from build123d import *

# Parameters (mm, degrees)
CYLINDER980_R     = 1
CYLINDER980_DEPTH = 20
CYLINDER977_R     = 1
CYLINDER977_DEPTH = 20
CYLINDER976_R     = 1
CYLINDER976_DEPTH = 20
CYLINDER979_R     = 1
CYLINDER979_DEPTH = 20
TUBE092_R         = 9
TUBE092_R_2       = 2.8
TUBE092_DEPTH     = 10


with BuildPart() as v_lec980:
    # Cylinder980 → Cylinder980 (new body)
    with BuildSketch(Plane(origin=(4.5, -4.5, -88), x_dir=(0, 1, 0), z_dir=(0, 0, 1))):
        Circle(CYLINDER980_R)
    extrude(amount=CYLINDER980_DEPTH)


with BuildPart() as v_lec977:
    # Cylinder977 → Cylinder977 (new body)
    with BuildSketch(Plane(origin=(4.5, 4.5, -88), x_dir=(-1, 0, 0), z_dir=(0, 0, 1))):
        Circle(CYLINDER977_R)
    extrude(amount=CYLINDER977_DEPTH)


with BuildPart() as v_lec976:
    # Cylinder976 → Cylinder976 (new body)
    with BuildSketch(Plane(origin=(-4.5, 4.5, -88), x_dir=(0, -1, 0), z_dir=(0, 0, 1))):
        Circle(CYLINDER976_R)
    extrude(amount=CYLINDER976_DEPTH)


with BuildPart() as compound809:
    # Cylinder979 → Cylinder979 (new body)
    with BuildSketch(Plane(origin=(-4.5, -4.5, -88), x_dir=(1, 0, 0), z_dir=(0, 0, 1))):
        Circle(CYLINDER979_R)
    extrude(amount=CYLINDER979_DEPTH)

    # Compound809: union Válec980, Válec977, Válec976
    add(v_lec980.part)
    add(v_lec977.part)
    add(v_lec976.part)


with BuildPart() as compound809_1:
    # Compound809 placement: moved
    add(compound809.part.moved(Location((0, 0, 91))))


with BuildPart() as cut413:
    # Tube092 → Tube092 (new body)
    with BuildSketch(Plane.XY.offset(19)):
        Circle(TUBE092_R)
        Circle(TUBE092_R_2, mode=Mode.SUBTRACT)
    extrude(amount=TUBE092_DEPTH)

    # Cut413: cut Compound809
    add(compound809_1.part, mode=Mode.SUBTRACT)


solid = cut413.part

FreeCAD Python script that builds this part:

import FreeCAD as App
import Part
import Sketcher

V = App.Vector

doc = App.newDocument("Part")
body = doc.addObject("PartDesign::Body", "Body")

# Sketch on XY plane
sketch1 = body.newObject("Sketcher::SketchObject", "Sketch")
sketch1.AttachmentSupport = (doc.getObject("XY_Plane"), [""])
sketch1.MapMode = "FlatFace"
sketch1.AttachmentOffset = App.Placement(V(0, 0, -88), App.Rotation())
sketch1.addGeometry(Part.Circle(V(4.5, -4.5, 0), V(0, 0, 1), 1), False)
sketch1.addConstraint([
    Sketcher.Constraint("Diameter", 0, 2.0),
    Sketcher.Constraint("DistanceX", -1, 1, 0, 3, 4.5),
    Sketcher.Constraint("DistanceY", 0, 3, -1, 1, 4.5),
])
pad1 = body.newObject("PartDesign::Pad", "Pad")
pad1.Profile = sketch1
pad1.Length = 20
body2 = doc.addObject("PartDesign::Body", "Body001")

# Sketch on XY plane
sketch2 = body2.newObject("Sketcher::SketchObject", "Sketch001")
sketch2.AttachmentSupport = (doc.getObject("XY_Plane001"), [""])
sketch2.MapMode = "FlatFace"
sketch2.AttachmentOffset = App.Placement(V(0, 0, -88), App.Rotation())
sketch2.addGeometry(Part.Circle(V(4.5, 4.5, 0), V(0, 0, 1), 1), False)
sketch2.addConstraint([
    Sketcher.Constraint("Diameter", 0, 2.0),
    Sketcher.Constraint("DistanceX", -1, 1, 0, 3, 4.5),
    Sketcher.Constraint("DistanceY", -1, 1, 0, 3, 4.5),
])
pad2 = body2.newObject("PartDesign::Pad", "Pad001")
pad2.Profile = sketch2
pad2.Length = 20
body3 = doc.addObject("PartDesign::Body", "Body002")

# Sketch on XY plane
sketch3 = body3.newObject("Sketcher::SketchObject", "Sketch002")
sketch3.AttachmentSupport = (doc.getObject("XY_Plane002"), [""])
sketch3.MapMode = "FlatFace"
sketch3.AttachmentOffset = App.Placement(V(0, 0, -88), App.Rotation())
sketch3.addGeometry(Part.Circle(V(-4.5, 4.5, 0), V(0, 0, 1), 1), False)
sketch3.addConstraint([
    Sketcher.Constraint("Diameter", 0, 2.0),
    Sketcher.Constraint("DistanceX", 0, 3, -1, 1, 4.5),
    Sketcher.Constraint("DistanceY", -1, 1, 0, 3, 4.5),
])
pad3 = body3.newObject("PartDesign::Pad", "Pad002")
pad3.Profile = sketch3
pad3.Length = 20
body4 = doc.addObject("PartDesign::Body", "Body003")
body4.AllowCompound = True

# Sketch on XY plane
sketch4 = body4.newObject("Sketcher::SketchObject", "Sketch003")
sketch4.AttachmentSupport = (doc.getObject("XY_Plane003"), [""])
sketch4.MapMode = "FlatFace"
sketch4.AttachmentOffset = App.Placement(V(0, 0, -88), App.Rotation())
sketch4.addGeometry(Part.Circle(V(-4.5, -4.5, 0), V(0, 0, 1), 1), False)
sketch4.addConstraint([
    Sketcher.Constraint("Diameter", 0, 2.0),
    Sketcher.Constraint("DistanceX", 0, 3, -1, 1, 4.5),
    Sketcher.Constraint("DistanceY", 0, 3, -1, 1, 4.5),
])
pad4 = body4.newObject("PartDesign::Pad", "Pad003")
pad4.Profile = sketch4
pad4.Length = 20
doc.recompute()

boolean = body4.newObject("PartDesign::Boolean", "Boolean")
boolean.Type = "Fuse"
boolean.addObjects([body])
doc.recompute()

boolean2 = body4.newObject("PartDesign::Boolean", "Boolean001")
boolean2.Type = "Fuse"
boolean2.addObjects([body2])
doc.recompute()

boolean3 = body4.newObject("PartDesign::Boolean", "Boolean002")
boolean3.Type = "Fuse"
boolean3.addObjects([body3])
body5 = doc.addObject("PartDesign::Body", "Body004")
body5.AllowCompound = True
doc.recompute()

body4.Placement = App.Placement(V(0, 0, 91), App.Rotation(V(0, 0, 1), 0))
boolean4 = body5.newObject("PartDesign::Boolean", "Boolean003")
boolean4.Type = "Fuse"
boolean4.addObjects([body4])
body6 = doc.addObject("PartDesign::Body", "Body005")

# Sketch on XY plane
sketch5 = body6.newObject("Sketcher::SketchObject", "Sketch004")
sketch5.AttachmentSupport = (doc.getObject("XY_Plane005"), [""])
sketch5.MapMode = "FlatFace"
sketch5.AttachmentOffset = App.Placement(V(0, 0, 19), App.Rotation())
sketch5.addGeometry([
    Part.Circle(V(0, 0, 0), V(0, 0, 1), 9),
    Part.Circle(V(0, 0, 0), V(0, 0, 1), 2.8),
], False)
sketch5.addConstraint([
    Sketcher.Constraint("Coincident", 0, 3, -1, 1),
    Sketcher.Constraint("Coincident", 1, 3, -1, 1),
    Sketcher.Constraint("Diameter", 0, 18.0),
    Sketcher.Constraint("Diameter", 1, 5.6),
])
pad5 = body6.newObject("PartDesign::Pad", "Pad004")
pad5.Profile = sketch5
pad5.Length = 10
doc.recompute()

boolean5 = body6.newObject("PartDesign::Boolean", "Boolean004")
boolean5.Type = "Cut"
boolean5.addObjects([body5])

doc.recompute()
